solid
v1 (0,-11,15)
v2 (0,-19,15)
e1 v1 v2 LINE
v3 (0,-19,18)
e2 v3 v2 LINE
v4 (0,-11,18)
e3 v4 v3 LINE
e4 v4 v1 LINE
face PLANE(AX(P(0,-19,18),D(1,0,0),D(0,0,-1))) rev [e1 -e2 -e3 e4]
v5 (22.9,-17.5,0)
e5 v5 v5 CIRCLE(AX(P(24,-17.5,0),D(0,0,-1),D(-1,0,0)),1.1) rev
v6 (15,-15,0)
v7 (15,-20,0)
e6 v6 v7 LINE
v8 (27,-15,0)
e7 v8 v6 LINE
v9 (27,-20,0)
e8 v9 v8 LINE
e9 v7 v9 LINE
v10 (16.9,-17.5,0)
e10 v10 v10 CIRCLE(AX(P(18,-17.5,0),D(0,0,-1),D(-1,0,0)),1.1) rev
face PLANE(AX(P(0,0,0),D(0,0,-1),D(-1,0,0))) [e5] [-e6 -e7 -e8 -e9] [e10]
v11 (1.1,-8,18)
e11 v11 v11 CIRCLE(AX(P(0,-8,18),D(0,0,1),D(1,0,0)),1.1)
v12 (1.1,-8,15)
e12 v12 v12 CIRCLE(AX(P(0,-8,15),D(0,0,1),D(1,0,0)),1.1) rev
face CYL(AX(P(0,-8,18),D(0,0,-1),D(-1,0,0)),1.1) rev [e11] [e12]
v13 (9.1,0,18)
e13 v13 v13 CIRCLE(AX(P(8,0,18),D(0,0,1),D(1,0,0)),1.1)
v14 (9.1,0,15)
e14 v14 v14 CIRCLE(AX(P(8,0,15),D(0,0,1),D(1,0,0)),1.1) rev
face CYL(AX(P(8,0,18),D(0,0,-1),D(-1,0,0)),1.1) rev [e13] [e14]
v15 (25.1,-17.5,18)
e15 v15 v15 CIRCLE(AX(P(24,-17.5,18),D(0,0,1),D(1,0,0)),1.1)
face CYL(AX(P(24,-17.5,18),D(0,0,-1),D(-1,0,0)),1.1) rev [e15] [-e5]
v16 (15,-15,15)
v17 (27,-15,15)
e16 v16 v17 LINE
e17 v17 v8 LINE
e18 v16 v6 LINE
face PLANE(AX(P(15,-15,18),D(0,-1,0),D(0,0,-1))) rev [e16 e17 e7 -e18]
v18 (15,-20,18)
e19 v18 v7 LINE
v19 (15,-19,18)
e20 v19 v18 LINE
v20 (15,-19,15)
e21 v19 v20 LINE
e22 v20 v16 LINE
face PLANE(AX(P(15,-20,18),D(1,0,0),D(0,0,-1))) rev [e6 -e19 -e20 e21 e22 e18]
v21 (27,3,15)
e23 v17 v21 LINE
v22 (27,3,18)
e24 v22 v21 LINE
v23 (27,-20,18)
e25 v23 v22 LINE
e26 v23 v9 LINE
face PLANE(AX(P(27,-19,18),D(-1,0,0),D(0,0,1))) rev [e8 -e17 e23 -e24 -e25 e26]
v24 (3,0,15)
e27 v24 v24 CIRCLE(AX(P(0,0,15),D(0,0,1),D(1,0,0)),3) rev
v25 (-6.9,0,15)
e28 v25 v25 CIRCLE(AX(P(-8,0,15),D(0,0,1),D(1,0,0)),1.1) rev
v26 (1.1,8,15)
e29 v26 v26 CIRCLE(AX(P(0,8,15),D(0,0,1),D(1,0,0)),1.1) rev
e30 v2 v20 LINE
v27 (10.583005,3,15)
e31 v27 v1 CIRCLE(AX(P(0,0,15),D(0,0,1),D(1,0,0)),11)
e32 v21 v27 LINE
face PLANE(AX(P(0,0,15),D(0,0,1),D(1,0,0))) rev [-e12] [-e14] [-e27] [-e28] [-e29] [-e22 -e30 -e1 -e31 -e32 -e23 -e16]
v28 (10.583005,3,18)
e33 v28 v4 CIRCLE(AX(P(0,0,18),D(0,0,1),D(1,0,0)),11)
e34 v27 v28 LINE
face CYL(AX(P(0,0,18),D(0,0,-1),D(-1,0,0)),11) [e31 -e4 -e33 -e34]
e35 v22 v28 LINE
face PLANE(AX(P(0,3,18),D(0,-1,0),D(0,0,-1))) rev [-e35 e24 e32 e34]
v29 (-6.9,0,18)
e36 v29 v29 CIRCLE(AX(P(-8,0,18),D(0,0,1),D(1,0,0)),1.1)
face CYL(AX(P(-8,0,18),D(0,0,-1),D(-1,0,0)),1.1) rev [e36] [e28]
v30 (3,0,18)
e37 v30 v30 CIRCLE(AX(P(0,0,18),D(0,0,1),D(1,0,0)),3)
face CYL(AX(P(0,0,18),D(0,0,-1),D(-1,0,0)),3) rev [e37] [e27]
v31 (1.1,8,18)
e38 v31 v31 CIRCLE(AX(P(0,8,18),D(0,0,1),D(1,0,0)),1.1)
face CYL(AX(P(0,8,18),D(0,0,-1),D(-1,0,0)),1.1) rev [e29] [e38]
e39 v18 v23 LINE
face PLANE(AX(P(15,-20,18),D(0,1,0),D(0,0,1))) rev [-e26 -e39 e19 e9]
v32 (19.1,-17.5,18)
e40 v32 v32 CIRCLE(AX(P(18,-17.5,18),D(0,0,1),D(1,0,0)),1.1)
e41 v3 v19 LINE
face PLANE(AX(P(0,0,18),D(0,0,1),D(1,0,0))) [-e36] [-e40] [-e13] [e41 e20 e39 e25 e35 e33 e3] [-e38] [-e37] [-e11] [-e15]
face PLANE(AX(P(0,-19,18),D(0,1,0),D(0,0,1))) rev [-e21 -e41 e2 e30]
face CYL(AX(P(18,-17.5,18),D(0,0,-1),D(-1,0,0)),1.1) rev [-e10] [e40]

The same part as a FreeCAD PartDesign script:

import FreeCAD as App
import Part
import Sketcher
from FreeCAD import Vector

doc = App.newDocument("Part")
params = doc.addObject("Spreadsheet::Sheet", "Params")
for row, (alias, value) in enumerate([
    ("sketch1_diameter", "22 mm"),
    ("pad1_length", "3 mm"),
    ("sketch2_width", "27 mm"),
    ("sketch2_height", "22 mm"),
    ("pad2_length", "3 mm"),
    ("sketch3_width", "12 mm"),
    ("sketch3_height", "5 mm"),
    ("pad3_length", "18 mm"),
    ("sketch4_diameter", "6 mm"),
    ("sketch5_diameter", "2.2 mm"),
    ("sketch6_diameter", "2.2 mm"),
], start=1):
    params.set(f"A{row}", alias)
    params.set(f"B{row}", "=" + value)
    params.setAlias(f"B{row}", alias)

body = doc.addObject("PartDesign::Body", "Body")

# Sketch on XY plane
sketch1 = body.newObject("Sketcher::SketchObject", "Sketch")
sketch1.AttachmentSupport = (doc.getObject("XY_Plane"), [""])
sketch1.MapMode = "FlatFace"
sketch1.AttachmentOffset = App.Placement(Vector(0, 0, 15), App.Rotation())
sketch1.addGeometry(Part.Circle(Vector(0, 0, 0), Vector(0, 0, 1), 11), False)
sketch1.addConstraint([
    Sketcher.Constraint("Coincident", 0, 3, -1, 1),
    Sketcher.Constraint("Diameter", 0, 22.0),
])
sketch1.setExpression("Constraints[1]", "Params.sketch1_diameter")
pad1 = body.newObject("PartDesign::Pad", "Pad")
pad1.Profile = sketch1
pad1.setExpression("Length", "Params.pad1_length")

# Sketch on XY plane
sketch2 = body.newObject("Sketcher::SketchObject", "Sketch001")
sketch2.AttachmentSupport = (doc.getObject("XY_Plane"), [""])
sketch2.MapMode = "FlatFace"
sketch2.AttachmentOffset = App.Placement(Vector(0, 0, 15), App.Rotation())
sketch2.addGeometry([
    Part.LineSegment(Vector(0, 3, 0), Vector(0, -19, 0)),
    Part.LineSegment(Vector(0, -19, 0), Vector(27, -19, 0)),
    Part.LineSegment(Vector(27, -19, 0), Vector(27, 3, 0)),
    Part.LineSegment(Vector(27, 3, 0), Vector(0, 3, 0)),
], False)
sketch2.addConstraint([
    Sketcher.Constraint("Coincident", 0, 2, 1, 1),
    Sketcher.Constraint("Coincident", 1, 2, 2, 1),
    Sketcher.Constraint("Coincident", 2, 2, 3, 1),
    Sketcher.Constraint("Coincident", 3, 2, 0, 1),
    Sketcher.Constraint("Vertical", 0),
    Sketcher.Constraint("Horizontal", 1),
    Sketcher.Constraint("Vertical", 2),
    Sketcher.Constraint("Horizontal", 3),
    Sketcher.Constraint("PointOnObject", 0, 2, -2),
    Sketcher.Constraint("DistanceX", 1, 1, 1, 2, 27.0),
    Sketcher.Constraint("DistanceY", 0, 2, 0, 1, 22.0),
    Sketcher.Constraint("DistanceY", 0, 2, -1, 1, 19.0),
])
sketch2.setExpression("Constraints[9]", "Params.sketch2_width")
sketch2.setExpression("Constraints[10]", "Params.sketch2_height")
pad2 = body.newObject("PartDesign::Pad", "Pad001")
pad2.Profile = sketch2
pad2.setExpression("Length", "Params.pad2_length")

# Sketch on XY plane
sketch3 = body.newObject("Sketcher::SketchObject", "Sketch002")
sketch3.AttachmentSupport = (doc.getObject("XY_Plane"), [""])
sketch3.MapMode = "FlatFace"
sketch3.addGeometry([
    Part.LineSegment(Vector(15, -15, 0), Vector(15, -20, 0)),
    Part.LineSegment(Vector(15, -20, 0), Vector(27, -20, 0)),
    Part.LineSegment(Vector(27, -20, 0), Vector(27, -15, 0)),
    Part.LineSegment(Vector(27, -15, 0), Vector(15, -15, 0)),
], False)
sketch3.addConstraint([
    Sketcher.Constraint("Coincident", 0, 2, 1, 1),
    Sketcher.Constraint("Coincident", 1, 2, 2, 1),
    Sketcher.Constraint("Coincident", 2, 2, 3, 1),
    Sketcher.Constraint("Coincident", 3, 2, 0, 1),
    Sketcher.Constraint("Vertical", 0),
    Sketcher.Constraint("Horizontal", 1),
    Sketcher.Constraint("Vertical", 2),
    Sketcher.Constraint("Horizontal", 3),
    Sketcher.Constraint("DistanceX", 1, 1, 1, 2, 12.0),
    Sketcher.Constraint("DistanceY", 0, 2, 0, 1, 5.0),
    Sketcher.Constraint("DistanceX", -1, 1, 0, 2, 15.0),
    Sketcher.Constraint("DistanceY", 0, 2, -1, 1, 20.0),
])
sketch3.setExpression("Constraints[8]", "Params.sketch3_width")
sketch3.setExpression("Constraints[9]", "Params.sketch3_height")
pad3 = body.newObject("PartDesign::Pad", "Pad002")
pad3.Profile = sketch3
pad3.setExpression("Length", "Params.pad3_length")

# Sketch on XY plane
sketch4 = body.newObject("Sketcher::SketchObject", "Sketch003")
sketch4.AttachmentSupport = (doc.getObject("XY_Plane"), [""])
sketch4.MapMode = "FlatFace"
sketch4.AttachmentOffset = App.Placement(Vector(0, 0, -50), App.Rotation())
sketch4.addGeometry(Part.Circle(Vector(0, 0, 0), Vector(0, 0, 1), 3), False)
sketch4.addConstraint([
    Sketcher.Constraint("Coincident", 0, 3, -1, 1),
    Sketcher.Constraint("Diameter", 0, 6.0),
])
sketch4.setExpression("Constraints[1]", "Params.sketch4_diameter")
pocket1 = body.newObject("PartDesign::Pocket", "Pocket")
pocket1.Profile = sketch4
pocket1.Type = "ThroughAll"
pocket1.Reversed = True

# Sketch on XY plane
sketch5 = body.newObject("Sketcher::SketchObject", "Sketch004")
sketch5.AttachmentSupport = (doc.getObject("XY_Plane"), [""])
sketch5.MapMode = "FlatFace"
sketch5.AttachmentOffset = App.Placement(Vector(0, 0, -50), App.Rotation())
sketch5.addGeometry([
    Part.Circle(Vector(0, -8, 0), Vector(0, 0, 1), 1.1),
    Part.Circle(Vector(0, 8, 0), Vector(0, 0, 1), 1.1),
    Part.Circle(Vector(-8, 0, 0), Vector(0, 0, 1), 1.1),
    Part.Circle(Vector(8, 0, 0), Vector(0, 0, 1), 1.1),
], False)
sketch5.addConstraint([
    Sketcher.Constraint("Equal", 0, 1),
    Sketcher.Constraint("Equal", 1, 2),
    Sketcher.Constraint("Equal", 2, 3),
    Sketcher.Constraint("Symmetric", 0, 3, 1, 3, -1, 1),
    Sketcher.Constraint("Symmetric", 2, 3, 3, 3, -1, 1),
    Sketcher.Constraint("PointOnObject", 0, 3, -2),
    Sketcher.Constraint("PointOnObject", 2, 3, -1),
    Sketcher.Constraint("Diameter", 0, 2.2),
    Sketcher.Constraint("DistanceY", 0, 3, -1, 1, 8.0),
    Sketcher.Constraint("DistanceX", 2, 3, -1, 1, 8.0),
])
sketch5.setExpression("Constraints[7]", "Params.sketch5_diameter")
pocket2 = body.newObject("PartDesign::Pocket", "Pocket001")
pocket2.Profile = sketch5
pocket2.Type = "ThroughAll"
pocket2.Reversed = True

# Sketch on XY plane
sketch6 = body.newObject("Sketcher::SketchObject", "Sketch005")
sketch6.AttachmentSupport = (doc.getObject("XY_Plane"), [""])
sketch6.MapMode = "FlatFace"
sketch6.AttachmentOffset = App.Placement(Vector(0, 0, -50), App.Rotation())
sketch6.addGeometry([
    Part.Circle(Vector(18, -17.5, 0), Vector(0, 0, 1), 1.1),
    Part.Circle(Vector(24, -17.5, 0), Vector(0, 0, 1), 1.1),
], False)
sketch6.addConstraint([
    Sketcher.Constraint("Equal", 0, 1),
    Sketcher.Constraint("Horizontal", 0, 3, 1, 3),
    Sketcher.Constraint("Diameter", 0, 2.2),
    Sketcher.Constraint("DistanceX", -1, 1, 0, 3, 18.0),
    Sketcher.Constraint("DistanceX", -1, 1, 1, 3, 24.0),
    Sketcher.Constraint("DistanceY", 0, 3, -1, 1, 17.5),
])
sketch6.setExpression("Constraints[2]", "Params.sketch6_diameter")
pocket3 = body.newObject("PartDesign::Pocket", "Pocket002")
pocket3.Profile = sketch6
pocket3.Type = "ThroughAll"
pocket3.Reversed = True

doc.recompute()
